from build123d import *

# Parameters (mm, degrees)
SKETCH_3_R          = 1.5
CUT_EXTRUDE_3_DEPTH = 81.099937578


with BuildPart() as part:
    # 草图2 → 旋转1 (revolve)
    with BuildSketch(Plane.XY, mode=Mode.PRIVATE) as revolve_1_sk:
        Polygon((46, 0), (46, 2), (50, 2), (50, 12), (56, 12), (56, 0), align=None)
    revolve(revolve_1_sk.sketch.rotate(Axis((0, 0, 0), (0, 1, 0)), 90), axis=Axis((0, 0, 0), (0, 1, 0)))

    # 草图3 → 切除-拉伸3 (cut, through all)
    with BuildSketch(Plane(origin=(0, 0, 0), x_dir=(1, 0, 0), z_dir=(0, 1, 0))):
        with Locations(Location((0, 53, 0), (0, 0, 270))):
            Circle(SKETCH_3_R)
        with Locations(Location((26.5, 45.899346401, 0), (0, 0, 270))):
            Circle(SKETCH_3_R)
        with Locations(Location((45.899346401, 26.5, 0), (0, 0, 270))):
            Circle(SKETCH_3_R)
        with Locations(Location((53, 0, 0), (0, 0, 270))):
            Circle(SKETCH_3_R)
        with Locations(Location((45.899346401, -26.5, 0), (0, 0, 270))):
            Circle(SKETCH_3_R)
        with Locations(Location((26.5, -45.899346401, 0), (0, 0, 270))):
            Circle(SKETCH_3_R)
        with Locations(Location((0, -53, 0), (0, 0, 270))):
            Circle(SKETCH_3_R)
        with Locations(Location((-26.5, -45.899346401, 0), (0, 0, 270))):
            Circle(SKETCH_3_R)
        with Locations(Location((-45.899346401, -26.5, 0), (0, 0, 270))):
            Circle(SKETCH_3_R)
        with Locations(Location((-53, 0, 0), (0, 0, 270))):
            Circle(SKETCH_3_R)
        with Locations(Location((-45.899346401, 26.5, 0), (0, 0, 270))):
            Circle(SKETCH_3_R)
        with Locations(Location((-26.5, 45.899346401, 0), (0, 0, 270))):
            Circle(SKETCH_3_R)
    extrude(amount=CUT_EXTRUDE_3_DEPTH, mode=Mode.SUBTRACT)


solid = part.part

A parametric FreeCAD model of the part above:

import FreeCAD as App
import Part
import Sketcher

V = App.Vector
Q = App.Units.Quantity


def add_polygon(sketch, points):
    """Adds a closed chain of lines whose ends are joined by coincident constraints."""
    first, n = sketch.GeometryCount, len(points)
    for a, b in zip(points, points[1:] + points[:1]):
        sketch.addGeometry(Part.LineSegment(App.Vector(*a, 0), App.Vector(*b, 0)), False)
    for i in range(n):
        sketch.addConstraint(Sketcher.Constraint("Coincident", first + i, 2, first + (i + 1) % n, 1))

doc = App.newDocument("Part")
params = doc.addObject("Spreadsheet::Sheet", "Params")
for row, (alias, value) in enumerate([
    ("sketch1_width", "10 mm"),
    ("sketch1_width2", "6 mm"),
    ("sketch1_height", "2 mm"),
    ("revolution_angle", "360 deg"),
    ("sketch2_diameter", "3 mm"),
], start=1):
    params.set(f"A{row}", alias)
    params.set(f"B{row}", "=" + value)
    params.setAlias(f"B{row}", alias)

body = doc.addObject("PartDesign::Body", "Body")

sketch1 = body.newObject("Sketcher::SketchObject", "Sketch")
sketch1.AttachmentSupport = (doc.getObject("XY_Plane"), [""])
sketch1.MapMode = "FlatFace"
add_polygon(sketch1, [(46, 2), (46, 0), (56, 0), (56, 12), (50, 12), (50, 2)])
sketch1.addConstraint(Sketcher.Constraint("Vertical", 0))
sketch1.addConstraint(Sketcher.Constraint("Horizontal", 1))
sketch1.addConstraint(Sketcher.Constraint("Vertical", 2))
sketch1.addConstraint(Sketcher.Constraint("Horizontal", 3))
sketch1.addConstraint(Sketcher.Constraint("Vertical", 4))
sketch1.addConstraint(Sketcher.Constraint("Horizontal", 5))
sketch1.addConstraint(Sketcher.Constraint("PointOnObject", 0, 2, -1))
sketch1.addConstraint(Sketcher.Constraint("Equal", 1, 4))
sketch1.addConstraint(Sketcher.Constraint("DistanceX", 1, 1, 1, 2, Q("10 mm")))
sketch1.addConstraint(Sketcher.Constraint("DistanceX", 3, 2, 3, 1, Q("6 mm")))
sketch1.addConstraint(Sketcher.Constraint("DistanceY", 0, 2, 0, 1, Q("2 mm")))
sketch1.addConstraint(Sketcher.Constraint("DistanceX", -1, 1, 0, 2, Q("46 mm")))
sketch1.setExpression("Constraints[14]", "Params.sketch1_width")
sketch1.setExpression("Constraints[15]", "Params.sketch1_width2")
sketch1.setExpression("Constraints[16]", "Params.sketch1_height")
revolution = body.newObject("PartDesign::Revolution", "Revolution")
revolution.Profile = sketch1
revolution.ReferenceAxis = (sketch1, ["V_Axis"])
revolution.setExpression("Angle", "Params.revolution_angle")

sketch2 = body.newObject("Sketcher::SketchObject", "Sketch001")
sketch2.AttachmentSupport = (doc.getObject("XZ_Plane"), [""])
sketch2.MapMode = "FlatFace"
sketch2.addGeometry(Part.Circle(V(0, -53, 0), V(0, 0, 1), 1.5), False)
sketch2.addGeometry(Part.Circle(V(26.5, -45.9, 0), V(0, 0, 1), 1.5), False)
sketch2.addGeometry(Part.Circle(V(45.9, -26.5, 0), V(0, 0, 1), 1.5), False)
sketch2.addGeometry(Part.Circle(V(53, 0, 0), V(0, 0, 1), 1.5), False)
sketch2.addGeometry(Part.Circle(V(45.9, 26.5, 0), V(0, 0, 1), 1.5), False)
sketch2.addGeometry(Part.Circle(V(26.5, 45.9, 0), V(0, 0, 1), 1.5), False)
sketch2.addGeometry(Part.Circle(V(0, 53, 0), V(0, 0, 1), 1.5), False)
sketch2.addGeometry(Part.Circle(V(-26.5, 45.9, 0), V(0, 0, 1), 1.5), False)
sketch2.addGeometry(Part.Circle(V(-45.9, 26.5, 0), V(0, 0, 1), 1.5), False)
sketch2.addGeometry(Part.Circle(V(-53, 0, 0), V(0, 0, 1), 1.5), False)
sketch2.addGeometry(Part.Circle(V(-45.9, -26.5, 0), V(0, 0, 1), 1.5), False)
sketch2.addGeometry(Part.Circle(V(-26.5, -45.9, 0), V(0, 0, 1), 1.5), False)
sketch2.addConstraint(Sketcher.Constraint("Equal", 0, 1))
sketch2.addConstraint(Sketcher.Constraint("Equal", 1, 2))
sketch2.addConstraint(Sketcher.Constraint("Equal", 2, 3))
sketch2.addConstraint(Sketcher.Constraint("Equal", 3, 4))
sketch2.addConstraint(Sketcher.Constraint("Equal", 4, 5))
sketch2.addConstraint(Sketcher.Constraint("Equal", 5, 6))
sketch2.addConstraint(Sketcher.Constraint("Equal", 6, 7))
sketch2.addConstraint(Sketcher.Constraint("Equal", 7, 8))
sketch2.addConstraint(Sketcher.Constraint("Equal", 8, 9))
sketch2.addConstraint(Sketcher.Constraint("Equal", 9, 10))
sketch2.addConstraint(Sketcher.Constraint("Equal", 10, 11))
sketch2.addConstraint(Sketcher.Constraint("Symmetric", 0, 3, 6, 3, -1, 1))
sketch2.addConstraint(Sketcher.Constraint("Symmetric", 1, 3, 7, 3, -1, 1))
sketch2.addConstraint(Sketcher.Constraint("Symmetric", 2, 3, 8, 3, -1, 1))
sketch2.addConstraint(Sketcher.Constraint("Symmetric", 3, 3, 9, 3, -1, 1))
sketch2.addConstraint(Sketcher.Constraint("Symmetric", 4, 3, 10, 3, -1, 1))
sketch2.addConstraint(Sketcher.Constraint("Symmetric", 5, 3, 11, 3, -1, 1))
sketch2.addConstraint(Sketcher.Constraint("Symmetric", 5, 3, 7, 3, -2))
sketch2.addConstraint(Sketcher.Constraint("Symmetric", 4, 3, 8, 3, -2))
sketch2.addConstraint(Sketcher.Constraint("PointOnObject", 0, 3, -2))
sketch2.addConstraint(Sketcher.Constraint("PointOnObject", 3, 3, -1))
sketch2.addConstraint(Sketcher.Constraint("Diameter", 0, Q("3 mm")))
sketch2.addConstraint(Sketcher.Constraint("DistanceY", 0, 3, -1, 1, Q("53 mm")))
sketch2.addConstraint(Sketcher.Constraint("DistanceX", -1, 1, 3, 3, Q("53 mm")))
sketch2.addConstraint(Sketcher.Constraint("DistanceY", 2, 3, 4, 3, Q("53 mm")))
sketch2.addConstraint(Sketcher.Constraint("DistanceX", 7, 3, 5, 3, Q("53 mm")))
sketch2.addConstraint(Sketcher.Constraint("DistanceY", 1, 3, -1, 1, Q("45.899346 mm")))
sketch2.addConstraint(Sketcher.Constraint("DistanceX", -1, 1, 2, 3, Q("45.899346 mm")))
sketch2.setExpression("Constraints[21]", "Params.sketch2_diameter")
pocket1 = body.newObject("PartDesign::Pocket", "Pocket")
pocket1.Profile = sketch2
pocket1.Type = "ThroughAll"

doc.recompute()
